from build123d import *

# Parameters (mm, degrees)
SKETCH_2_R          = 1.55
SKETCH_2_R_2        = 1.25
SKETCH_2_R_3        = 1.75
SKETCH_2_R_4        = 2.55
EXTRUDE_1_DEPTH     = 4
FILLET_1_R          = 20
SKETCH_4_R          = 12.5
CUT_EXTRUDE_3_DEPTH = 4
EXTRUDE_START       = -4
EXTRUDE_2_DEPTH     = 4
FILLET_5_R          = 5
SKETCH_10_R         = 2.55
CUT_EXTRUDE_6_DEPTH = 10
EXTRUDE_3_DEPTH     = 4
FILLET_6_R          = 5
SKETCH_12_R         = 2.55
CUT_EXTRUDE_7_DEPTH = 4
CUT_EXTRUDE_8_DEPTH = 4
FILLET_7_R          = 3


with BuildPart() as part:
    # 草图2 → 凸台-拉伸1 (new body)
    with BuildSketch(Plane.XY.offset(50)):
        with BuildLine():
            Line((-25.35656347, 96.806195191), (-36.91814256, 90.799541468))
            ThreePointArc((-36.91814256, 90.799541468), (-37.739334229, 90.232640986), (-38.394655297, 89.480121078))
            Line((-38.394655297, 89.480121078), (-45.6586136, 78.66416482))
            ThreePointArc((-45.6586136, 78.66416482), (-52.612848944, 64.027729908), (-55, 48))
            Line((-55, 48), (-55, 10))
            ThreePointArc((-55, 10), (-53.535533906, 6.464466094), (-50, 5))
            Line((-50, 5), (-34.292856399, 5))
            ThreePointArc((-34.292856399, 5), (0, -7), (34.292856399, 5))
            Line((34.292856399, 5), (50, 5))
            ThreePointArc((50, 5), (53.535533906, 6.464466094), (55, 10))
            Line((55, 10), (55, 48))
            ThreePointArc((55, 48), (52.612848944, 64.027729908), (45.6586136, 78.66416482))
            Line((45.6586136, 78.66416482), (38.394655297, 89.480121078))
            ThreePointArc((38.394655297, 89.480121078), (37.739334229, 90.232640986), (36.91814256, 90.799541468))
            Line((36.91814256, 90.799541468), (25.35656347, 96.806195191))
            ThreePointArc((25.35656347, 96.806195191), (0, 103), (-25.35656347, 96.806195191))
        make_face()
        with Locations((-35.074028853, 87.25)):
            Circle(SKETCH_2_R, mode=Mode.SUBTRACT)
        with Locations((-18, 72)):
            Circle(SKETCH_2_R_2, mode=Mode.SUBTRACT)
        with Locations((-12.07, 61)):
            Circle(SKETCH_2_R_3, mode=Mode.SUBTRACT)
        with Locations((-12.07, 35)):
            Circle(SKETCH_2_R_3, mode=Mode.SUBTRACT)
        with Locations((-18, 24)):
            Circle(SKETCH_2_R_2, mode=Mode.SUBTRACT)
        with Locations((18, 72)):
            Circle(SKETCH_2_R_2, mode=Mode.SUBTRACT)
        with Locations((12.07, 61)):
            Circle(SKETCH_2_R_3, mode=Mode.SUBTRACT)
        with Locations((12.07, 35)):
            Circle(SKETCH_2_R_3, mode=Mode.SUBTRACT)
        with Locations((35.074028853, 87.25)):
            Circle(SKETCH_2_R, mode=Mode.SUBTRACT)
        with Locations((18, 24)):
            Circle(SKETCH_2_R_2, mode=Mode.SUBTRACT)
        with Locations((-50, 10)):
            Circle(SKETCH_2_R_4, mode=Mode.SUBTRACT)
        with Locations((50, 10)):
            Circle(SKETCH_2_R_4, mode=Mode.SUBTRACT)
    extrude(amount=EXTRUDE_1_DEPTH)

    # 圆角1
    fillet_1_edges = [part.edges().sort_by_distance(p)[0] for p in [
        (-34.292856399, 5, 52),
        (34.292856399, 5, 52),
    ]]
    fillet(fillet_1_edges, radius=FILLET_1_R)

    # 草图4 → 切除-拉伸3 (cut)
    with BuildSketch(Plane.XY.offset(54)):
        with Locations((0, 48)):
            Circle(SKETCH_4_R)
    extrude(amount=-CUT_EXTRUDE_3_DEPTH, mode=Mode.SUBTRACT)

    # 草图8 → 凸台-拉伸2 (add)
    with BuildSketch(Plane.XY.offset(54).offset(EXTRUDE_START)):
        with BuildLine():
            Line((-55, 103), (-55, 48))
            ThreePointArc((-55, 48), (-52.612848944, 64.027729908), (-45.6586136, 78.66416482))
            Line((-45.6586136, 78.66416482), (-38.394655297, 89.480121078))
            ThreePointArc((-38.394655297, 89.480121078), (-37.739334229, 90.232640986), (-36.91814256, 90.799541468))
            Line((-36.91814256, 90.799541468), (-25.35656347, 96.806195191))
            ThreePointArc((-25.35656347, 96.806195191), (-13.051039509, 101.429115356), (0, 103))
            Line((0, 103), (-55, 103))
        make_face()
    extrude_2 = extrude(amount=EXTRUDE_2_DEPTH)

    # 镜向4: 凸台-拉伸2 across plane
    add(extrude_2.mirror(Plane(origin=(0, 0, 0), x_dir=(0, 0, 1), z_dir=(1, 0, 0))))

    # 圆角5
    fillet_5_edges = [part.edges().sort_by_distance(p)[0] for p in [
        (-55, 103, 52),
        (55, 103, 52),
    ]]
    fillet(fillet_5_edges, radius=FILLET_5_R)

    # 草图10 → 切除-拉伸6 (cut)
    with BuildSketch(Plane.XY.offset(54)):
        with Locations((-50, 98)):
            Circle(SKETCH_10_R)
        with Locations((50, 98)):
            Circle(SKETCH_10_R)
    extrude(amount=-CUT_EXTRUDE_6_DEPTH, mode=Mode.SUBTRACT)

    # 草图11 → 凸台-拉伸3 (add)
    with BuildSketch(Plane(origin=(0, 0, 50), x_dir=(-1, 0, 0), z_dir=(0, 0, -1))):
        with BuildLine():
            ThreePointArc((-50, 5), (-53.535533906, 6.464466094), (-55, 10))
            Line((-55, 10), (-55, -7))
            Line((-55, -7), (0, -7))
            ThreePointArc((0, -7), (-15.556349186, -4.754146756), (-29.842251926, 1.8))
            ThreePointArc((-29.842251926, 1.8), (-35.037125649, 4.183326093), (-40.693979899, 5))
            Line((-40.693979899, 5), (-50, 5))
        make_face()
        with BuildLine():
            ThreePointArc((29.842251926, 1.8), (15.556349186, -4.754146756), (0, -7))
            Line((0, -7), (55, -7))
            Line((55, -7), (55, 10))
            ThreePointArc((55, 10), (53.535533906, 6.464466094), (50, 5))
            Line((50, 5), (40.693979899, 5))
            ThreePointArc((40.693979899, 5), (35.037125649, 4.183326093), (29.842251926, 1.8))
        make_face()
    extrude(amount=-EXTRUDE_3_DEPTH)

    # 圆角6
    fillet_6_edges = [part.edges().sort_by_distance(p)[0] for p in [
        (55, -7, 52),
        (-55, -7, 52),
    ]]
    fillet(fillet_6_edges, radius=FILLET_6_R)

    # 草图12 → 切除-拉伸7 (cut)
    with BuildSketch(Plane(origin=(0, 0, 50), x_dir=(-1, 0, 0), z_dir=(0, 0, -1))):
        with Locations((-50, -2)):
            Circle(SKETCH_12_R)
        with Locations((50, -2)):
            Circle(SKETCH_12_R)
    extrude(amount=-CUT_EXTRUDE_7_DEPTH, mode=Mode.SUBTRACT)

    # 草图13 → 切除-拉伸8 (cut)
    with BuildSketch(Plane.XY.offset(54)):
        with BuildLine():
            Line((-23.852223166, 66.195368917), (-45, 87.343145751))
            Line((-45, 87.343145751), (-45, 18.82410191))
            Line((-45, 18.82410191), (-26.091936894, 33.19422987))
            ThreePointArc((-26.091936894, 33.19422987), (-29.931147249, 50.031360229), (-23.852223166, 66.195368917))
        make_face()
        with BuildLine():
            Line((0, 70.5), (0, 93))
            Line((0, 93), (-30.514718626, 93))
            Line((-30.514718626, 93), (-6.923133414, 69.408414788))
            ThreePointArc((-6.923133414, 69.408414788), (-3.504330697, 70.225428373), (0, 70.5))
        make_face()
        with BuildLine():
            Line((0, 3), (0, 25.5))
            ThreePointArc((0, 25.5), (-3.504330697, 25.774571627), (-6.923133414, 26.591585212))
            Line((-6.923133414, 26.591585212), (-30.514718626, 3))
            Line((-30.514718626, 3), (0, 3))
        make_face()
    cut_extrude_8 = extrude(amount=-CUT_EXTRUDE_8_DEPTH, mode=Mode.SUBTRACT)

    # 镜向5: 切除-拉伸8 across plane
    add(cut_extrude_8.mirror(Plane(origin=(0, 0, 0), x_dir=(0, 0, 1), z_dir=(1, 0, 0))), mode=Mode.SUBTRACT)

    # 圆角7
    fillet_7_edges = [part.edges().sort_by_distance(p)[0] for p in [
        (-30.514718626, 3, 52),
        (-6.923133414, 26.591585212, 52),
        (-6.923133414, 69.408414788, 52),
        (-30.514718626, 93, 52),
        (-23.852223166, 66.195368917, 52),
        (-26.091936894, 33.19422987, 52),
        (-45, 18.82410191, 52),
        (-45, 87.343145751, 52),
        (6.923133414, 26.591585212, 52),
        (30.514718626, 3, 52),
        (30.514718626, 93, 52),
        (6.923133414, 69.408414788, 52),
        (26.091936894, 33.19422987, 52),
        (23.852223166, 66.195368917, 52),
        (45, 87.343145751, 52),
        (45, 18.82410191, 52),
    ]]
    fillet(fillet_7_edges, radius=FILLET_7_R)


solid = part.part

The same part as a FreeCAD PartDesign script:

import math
import FreeCAD as App
import Part
import Sketcher


def edges_at(feature, points):
    """Names of the edges that pass closest to the given points."""
    edges = feature.Shape.Edges
    near = lambda p: min(range(len(edges)), key=lambda i: edges[i].distToShape(Part.Vertex(*p))[0])
    return sorted({f"Edge{near(p) + 1}" for p in points})

doc = App.newDocument("Part")
body = doc.addObject("PartDesign::Body", "Body")

# Sketch on XY plane
sketch1 = body.newObject("Sketcher::SketchObject", "Sketch")
sketch1.AttachmentSupport = (doc.getObject("XY_Plane"), [""])
sketch1.MapMode = "FlatFace"
sketch1.AttachmentOffset = App.Placement(App.Vector(0, 0, 50), App.Rotation())
sketch1.addGeometry(Part.LineSegment(App.Vector(-25.4, 96.8, 0), App.Vector(-36.9, 90.8, 0)), False)
sketch1.addGeometry(Part.ArcOfCircle(Part.Circle(App.Vector(-35.1, 87.2, 0), App.Vector(0, 0, 1), 4), math.radians(117), math.radians(146)), False)
sketch1.addGeometry(Part.LineSegment(App.Vector(-38.4, 89.5, 0), App.Vector(-45.7, 78.7, 0)), False)
sketch1.addGeometry(Part.ArcOfCircle(Part.Circle(App.Vector(0, 48, 0), App.Vector(0, 0, 1), 55), math.radians(146), math.radians(180)), False)
sketch1.addGeometry(Part.LineSegment(App.Vector(-55, 48, 0), App.Vector(-55, 10, 0)), False)
sketch1.addGeometry(Part.ArcOfCircle(Part.Circle(App.Vector(-50, 10, 0), App.Vector(0, 0, 1), 5), math.radians(180), math.radians(270)), False)
sketch1.addGeometry(Part.LineSegment(App.Vector(-50, 5, 0), App.Vector(-34.3, 5, 0)), False)
sketch1.addGeometry(Part.ArcOfCircle(Part.Circle(App.Vector(0, 48, 0), App.Vector(0, 0, 1), 55), math.radians(-129), math.radians(-51)), False)
sketch1.addGeometry(Part.LineSegment(App.Vector(34.3, 5, 0), App.Vector(50, 5, 0)), False)
sketch1.addGeometry(Part.ArcOfCircle(Part.Circle(App.Vector(50, 10, 0), App.Vector(0, 0, 1), 5), math.radians(-90), math.radians(0)), False)
sketch1.addGeometry(Part.LineSegment(App.Vector(55, 10, 0), App.Vector(55, 48, 0)), False)
sketch1.addGeometry(Part.ArcOfCircle(Part.Circle(App.Vector(0, 48, 0), App.Vector(0, 0, 1), 55), math.radians(0), math.radians(34)), False)
sketch1.addGeometry(Part.LineSegment(App.Vector(45.7, 78.7, 0), App.Vector(38.4, 89.5, 0)), False)
sketch1.addGeometry(Part.ArcOfCircle(Part.Circle(App.Vector(35.1, 87.2, 0), App.Vector(0, 0, 1), 4), math.radians(34), math.radians(63)), False)
sketch1.addGeometry(Part.LineSegment(App.Vector(36.9, 90.8, 0), App.Vector(25.4, 96.8, 0)), False)
sketch1.addGeometry(Part.ArcOfCircle(Part.Circle(App.Vector(0, 48, 0), App.Vector(0, 0, 1), 55), math.radians(63), math.radians(117)), False)
sketch1.addGeometry(Part.Circle(App.Vector(-50, 10, 0), App.Vector(0, 0, 1), 2.5), False)
sketch1.addGeometry(Part.Circle(App.Vector(-18, 24, 0), App.Vector(0, 0, 1), 1.2), False)
sketch1.addGeometry(Part.Circle(App.Vector(-12.1, 35, 0), App.Vector(0, 0, 1), 1.8), False)
sketch1.addGeometry(Part.Circle(App.Vector(18, 24, 0), App.Vector(0, 0, 1), 1.2), False)
sketch1.addGeometry(Part.Circle(App.Vector(50, 10, 0), App.Vector(0, 0, 1), 2.5), False)
sketch1.addGeometry(Part.Circle(App.Vector(12.1, 35, 0), App.Vector(0, 0, 1), 1.8), False)
sketch1.addGeometry(Part.Circle(App.Vector(-12.1, 61, 0), App.Vector(0, 0, 1), 1.8), False)
sketch1.addGeometry(Part.Circle(App.Vector(-35.1, 87.2, 0), App.Vector(0, 0, 1), 1.6), False)
sketch1.addGeometry(Part.Circle(App.Vector(-18, 72, 0), App.Vector(0, 0, 1), 1.2), False)
sketch1.addGeometry(Part.Circle(App.Vector(12.1, 61, 0), App.Vector(0, 0, 1), 1.8), False)
sketch1.addGeometry(Part.Circle(App.Vector(18, 72, 0), App.Vector(0, 0, 1), 1.2), False)
sketch1.addGeometry(Part.Circle(App.Vector(35.1, 87.2, 0), App.Vector(0, 0, 1), 1.6), False)
sketch1.addConstraint(Sketcher.Constraint("Tangent", 0, 2, 1, 1))
sketch1.addConstraint(Sketcher.Constraint("Tangent", 1, 2, 2, 1))
sketch1.addConstraint(Sketcher.Constraint("Tangent", 2, 2, 3, 1))
sketch1.addConstraint(Sketcher.Constraint("Tangent", 3, 2, 4, 1))
sketch1.addConstraint(Sketcher.Constraint("Tangent", 4, 2, 5, 1))
sketch1.addConstraint(Sketcher.Constraint("Tangent", 5, 2, 6, 1))
sketch1.addConstraint(Sketcher.Constraint("Coincident", 6, 2, 7, 1))
sketch1.addConstraint(Sketcher.Constraint("Coincident", 7, 2, 8, 1))
sketch1.addConstraint(Sketcher.Constraint("Tangent", 8, 2, 9, 1))
sketch1.addConstraint(Sketcher.Constraint("Tangent", 9, 2, 10, 1))
sketch1.addConstraint(Sketcher.Constraint("Tangent", 10, 2, 11, 1))
sketch1.addConstraint(Sketcher.Constraint("Tangent", 11, 2, 12, 1))
sketch1.addConstraint(Sketcher.Constraint("Tangent", 12, 2, 13, 1))
sketch1.addConstraint(Sketcher.Constraint("Tangent", 13, 2, 14, 1))
sketch1.addConstraint(Sketcher.Constraint("Tangent", 14, 2, 15, 1))
sketch1.addConstraint(Sketcher.Constraint("Tangent", 15, 2, 0, 1))
sketch1.addConstraint(Sketcher.Constraint("Vertical", 4))
sketch1.addConstraint(Sketcher.Constraint("Horizontal", 6))
sketch1.addConstraint(Sketcher.Constraint("Horizontal", 8))
sketch1.addConstraint(Sketcher.Constraint("Vertical", 10))
sketch1.addConstraint(Sketcher.Constraint("Coincident", 7, 3, 3, 3))
sketch1.addConstraint(Sketcher.Constraint("Coincident", 11, 3, 3, 3))
sketch1.addConstraint(Sketcher.Constraint("Coincident", 15, 3, 3, 3))
sketch1.addConstraint(Sketcher.Constraint("Coincident", 16, 3, 5, 3))
sketch1.addConstraint(Sketcher.Constraint("Coincident", 20, 3, 9, 3))
sketch1.addConstraint(Sketcher.Constraint("Coincident", 23, 3, 1, 3))
sketch1.addConstraint(Sketcher.Constraint("Coincident", 27, 3, 13, 3))
sketch1.addConstraint(Sketcher.Constraint("Equal", 3, 7))
sketch1.addConstraint(Sketcher.Constraint("Equal", 5, 9))
sketch1.addConstraint(Sketcher.Constraint("Equal", 7, 11))
sketch1.addConstraint(Sketcher.Constraint("Equal", 1, 13))
sketch1.addConstraint(Sketcher.Constraint("Equal", 11, 15))
sketch1.addConstraint(Sketcher.Constraint("Equal", 17, 19))
sketch1.addConstraint(Sketcher.Constraint("Equal", 16, 20))
sketch1.addConstraint(Sketcher.Constraint("Equal", 18, 21))
sketch1.addConstraint(Sketcher.Constraint("Equal", 21, 22))
sketch1.addConstraint(Sketcher.Constraint("Equal", 19, 24))
sketch1.addConstraint(Sketcher.Constraint("Equal", 22, 25))
sketch1.addConstraint(Sketcher.Constraint("Equal", 24, 26))
sketch1.addConstraint(Sketcher.Constraint("Equal", 23, 27))
sketch1.addConstraint(Sketcher.Constraint("Symmetric", 5, 3, 9, 3, -2))
sketch1.addConstraint(Sketcher.Constraint("Symmetric", 1, 3, 13, 3, -2))
sketch1.addConstraint(Sketcher.Constraint("Symmetric", 17, 3, 19, 3, -2))
sketch1.addConstraint(Sketcher.Constraint("Symmetric", 18, 3, 21, 3, -2))
sketch1.addConstraint(Sketcher.Constraint("Symmetric", 22, 3, 25, 3, -2))
sketch1.addConstraint(Sketcher.Constraint("Symmetric", 24, 3, 26, 3, -2))
sketch1.addConstraint(Sketcher.Constraint("Vertical", 18, 3, 22, 3))
sketch1.addConstraint(Sketcher.Constraint("Vertical", 17, 3, 24, 3))
sketch1.addConstraint(Sketcher.Constraint("Radius", 1, 4.0))
sketch1.addConstraint(Sketcher.Constraint("Radius", 3, 55.0))
sketch1.addConstraint(Sketcher.Constraint("Radius", 5, 5.0))
sketch1.addConstraint(Sketcher.Constraint("Diameter", 16, 5.1))
sketch1.addConstraint(Sketcher.Constraint("Diameter", 17, 2.5))
sketch1.addConstraint(Sketcher.Constraint("Diameter", 18, 3.5))
sketch1.addConstraint(Sketcher.Constraint("Diameter", 23, 3.1))
sketch1.addConstraint(Sketcher.Constraint("DistanceY", 4, 2, 4, 1, 38.0))
sketch1.addConstraint(Sketcher.Constraint("DistanceY", -1, 1, 3, 3, 48.0))
sketch1.addConstraint(Sketcher.Constraint("DistanceX", 17, 3, -1, 1, 18.0))
sketch1.addConstraint(Sketcher.Constraint("DistanceY", -1, 1, 17, 3, 24.0))
sketch1.addConstraint(Sketcher.Constraint("DistanceY", -1, 1, 18, 3, 35.0))
sketch1.addConstraint(Sketcher.Constraint("DistanceY", -1, 1, 22, 3, 61.0))
sketch1.addConstraint(Sketcher.Constraint("DistanceY", -1, 1, 24, 3, 72.0))
sketch1.addConstraint(Sketcher.Constraint("DistanceY", -1, 1, 1, 3, 87.25))
sketch1.addConstraint(Sketcher.Constraint("DistanceX", 18, 3, -1, 1, 12.07))
sketch1.addConstraint(Sketcher.Constraint("DistanceX", 1, 3, -1, 1, 35.074029))
pad1 = body.newObject("PartDesign::Pad", "Pad")
pad1.Profile = sketch1
pad1.Length = 4
doc.recompute()

fillet = body.newObject("PartDesign::Fillet", "Fillet")
fillet.Base = (pad1, edges_at(pad1, [(-34.293, 5, 52), (34.293, 5, 52)]))
fillet.Radius = 20

# Sketch on XY plane
sketch2 = body.newObject("Sketcher::SketchObject", "Sketch001")
sketch2.AttachmentSupport = (doc.getObject("XY_Plane"), [""])
sketch2.MapMode = "FlatFace"
sketch2.AttachmentOffset = App.Placement(App.Vector(0, 0, 54), App.Rotation())
sketch2.addGeometry(Part.Circle(App.Vector(0, 48, 0), App.Vector(0, 0, 1), 12), False)
sketch2.addConstraint(Sketcher.Constraint("PointOnObject", 0, 3, -2))
sketch2.addConstraint(Sketcher.Constraint("Diameter", 0, 25.0))
sketch2.addConstraint(Sketcher.Constraint("DistanceY", -1, 1, 0, 3, 48.0))
pocket1 = body.newObject("PartDesign::Pocket", "Pocket")
pocket1.Profile = sketch2
pocket1.Length = 4

# Sketch on XY plane
sketch3 = body.newObject("Sketcher::SketchObject", "Sketch002")
sketch3.AttachmentSupport = (doc.getObject("XY_Plane"), [""])
sketch3.MapMode = "FlatFace"
sketch3.AttachmentOffset = App.Placement(App.Vector(0, 0, 50), App.Rotation())
sketch3.addGeometry(Part.LineSegment(App.Vector(-55, 103, 0), App.Vector(-55, 48, 0)), False)
sketch3.addGeometry(Part.ArcOfCircle(Part.Circle(App.Vector(0, 48, 0), App.Vector(0, 0, 1), 55), math.radians(146), math.radians(180)), False)
sketch3.addGeometry(Part.LineSegment(App.Vector(-45.7, 78.7, 0), App.Vector(-38.4, 89.5, 0)), False)
sketch3.addGeometry(Part.ArcOfCircle(Part.Circle(App.Vector(-35.1, 87.2, 0), App.Vector(0, 0, 1), 4), math.radians(117), math.radians(146)), False)
sketch3.addGeometry(Part.LineSegment(App.Vector(-36.9, 90.8, 0), App.Vector(-25.4, 96.8, 0)), False)
sketch3.addGeometry(Part.ArcOfCircle(Part.Circle(App.Vector(0, 48, 0), App.Vector(0, 0, 1), 55), math.radians(90), math.radians(117)), False)
sketch3.addGeometry(Part.LineSegment(App.Vector(0, 103, 0), App.Vector(-55, 103, 0)), False)
sketch3.addConstraint(Sketcher.Constraint("Tangent", 0, 2, 1, 2))
sketch3.addConstraint(Sketcher.Constraint("Tangent", 1, 1, 2, 1))
sketch3.addConstraint(Sketcher.Constraint("Tangent", 2, 2, 3, 2))
sketch3.addConstraint(Sketcher.Constraint("Tangent", 3, 1, 4, 1))
sketch3.addConstraint(Sketcher.Constraint("Tangent", 4, 2, 5, 2))
sketch3.addConstraint(Sketcher.Constraint("Tangent", 5, 1, 6, 1))
sketch3.addConstraint(Sketcher.Constraint("Coincident", 6, 2, 0, 1))
sketch3.addConstraint(Sketcher.Constraint("Vertical", 0))
sketch3.addConstraint(Sketcher.Constraint("Horizontal", 6))
sketch3.addConstraint(Sketcher.Constraint("Coincident", 5, 3, 1, 3))
sketch3.addConstraint(Sketcher.Constraint("Equal", 1, 5))
sketch3.addConstraint(Sketcher.Constraint("PointOnObject", 1, 3, -2))
sketch3.addConstraint(Sketcher.Constraint("Radius", 1, 55.0))
sketch3.addConstraint(Sketcher.Constraint("Radius", 3, 4.0))
sketch3.addConstraint(Sketcher.Constraint("DistanceY", -1, 1, 1, 3, 48.0))
sketch3.addConstraint(Sketcher.Constraint("DistanceY", -1, 1, 3, 3, 87.25))
sketch3.addConstraint(Sketcher.Constraint("DistanceX", 3, 3, -1, 1, 35.074029))
pad2 = body.newObject("PartDesign::Pad", "Pad001")
pad2.Profile = sketch3
pad2.Length = 4
doc.recompute()

mirrored = body.newObject("PartDesign::Mirrored", "Mirrored")
mirrored.Originals = [pad2]
mirrored.MirrorPlane = (doc.getObject("YZ_Plane"), [""])
body.Tip = mirrored
doc.recompute()

fillet2 = body.newObject("PartDesign::Fillet", "Fillet001")
fillet2.Base = (mirrored, edges_at(mirrored, [(-55, 103, 52), (55, 103, 52)]))
fillet2.Radius = 5

# Sketch on XY plane
sketch4 = body.newObject("Sketcher::SketchObject", "Sketch003")
sketch4.AttachmentSupport = (doc.getObject("XY_Plane"), [""])
sketch4.MapMode = "FlatFace"
sketch4.AttachmentOffset = App.Placement(App.Vector(0, 0, 54), App.Rotation())
sketch4.addGeometry(Part.Circle(App.Vector(-50, 98, 0), App.Vector(0, 0, 1), 2.5), False)
sketch4.addGeometry(Part.Circle(App.Vector(50, 98, 0), App.Vector(0, 0, 1), 2.5), False)
sketch4.addConstraint(Sketcher.Constraint("Equal", 0, 1))
sketch4.addConstraint(Sketcher.Constraint("Symmetric", 0, 3, 1, 3, -2))
sketch4.addConstraint(Sketcher.Constraint("Diameter", 0, 5.1))
sketch4.addConstraint(Sketcher.Constraint("DistanceX", 0, 3, -1, 1, 50.0))
sketch4.addConstraint(Sketcher.Constraint("DistanceY", -1, 1, 0, 3, 98.0))
pocket2 = body.newObject("PartDesign::Pocket", "Pocket001")
pocket2.Profile = sketch4
pocket2.Length = 10

# Sketch on XY plane
sketch5 = body.newObject("Sketcher::SketchObject", "Sketch004")
sketch5.AttachmentSupport = (doc.getObject("XY_Plane"), [""])
sketch5.MapMode = "FlatFace"
sketch5.AttachmentOffset = App.Placement(App.Vector(0, 0, 50), App.Rotation())
sketch5.addGeometry(Part.ArcOfCircle(Part.Circle(App.Vector(50, 10, 0), App.Vector(0, 0, 1), 5), math.radians(-90), math.radians(0)), False)
sketch5.addGeometry(Part.LineSegment(App.Vector(55, 10, 0), App.Vector(55, -7, 0)), False)
sketch5.addGeometry(Part.LineSegment(App.Vector(55, -7, 0), App.Vector(0, -7, 0)), False)
sketch5.addGeometry(Part.ArcOfCircle(Part.Circle(App.Vector(0, 48, 0), App.Vector(0, 0, 1), 55), math.radians(-90), math.radians(-57)), False)
sketch5.addGeometry(Part.ArcOfCircle(Part.Circle(App.Vector(41, -15, 0), App.Vector(0, 0, 1), 20), math.radians(90), math.radians(123)), False)
sketch5.addGeometry(Part.LineSegment(App.Vector(41, 5, 0), App.Vector(50, 5, 0)), False)
sketch5.addGeometry(Part.ArcOfCircle(Part.Circle(App.Vector(0, 48, 0), App.Vector(0, 0, 1), 55), math.radians(-123), math.radians(-90)), False)
sketch5.addGeometry(Part.LineSegment(App.Vector(0, -7, 0), App.Vector(-55, -7, 0)), False)
sketch5.addGeometry(Part.LineSegment(App.Vector(-55, -7, 0), App.Vector(-55, 10, 0)), False)
sketch5.addGeometry(Part.ArcOfCircle(Part.Circle(App.Vector(-50, 10, 0), App.Vector(0, 0, 1), 5), math.radians(180), math.radians(270)), False)
sketch5.addGeometry(Part.LineSegment(App.Vector(-50, 5, 0), App.Vector(-41, 5, 0)), False)
sketch5.addGeometry(Part.ArcOfCircle(Part.Circle(App.Vector(-41, -15, 0), App.Vector(0, 0, 1), 20), math.radians(57), math.radians(90)), False)
sketch5.addConstraint(Sketcher.Constraint("Tangent", 0, 2, 1, 1))
sketch5.addConstraint(Sketcher.Constraint("Coincident", 1, 2, 2, 1))
sketch5.addConstraint(Sketcher.Constraint("Tangent", 2, 2, 3, 1))
sketch5.addConstraint(Sketcher.Constraint("Tangent", 3, 2, 4, 2))
sketch5.addConstraint(Sketcher.Constraint("Tangent", 4, 1, 5, 1))
sketch5.addConstraint(Sketcher.Constraint("Tangent", 5, 2, 0, 1))
sketch5.addConstraint(Sketcher.Constraint("Tangent", 6, 2, 7, 1))
sketch5.addConstraint(Sketcher.Constraint("Coincident", 7, 2, 8, 1))
sketch5.addConstraint(Sketcher.Constraint("Tangent", 8, 2, 9, 1))
sketch5.addConstraint(Sketcher.Constraint("Tangent", 9, 2, 10, 1))
sketch5.addConstraint(Sketcher.Constraint("Tangent", 10, 2, 11, 2))
sketch5.addConstraint(Sketcher.Constraint("Tangent", 11, 1, 6, 1))
sketch5.addConstraint(Sketcher.Constraint("Vertical", 1))
sketch5.addConstraint(Sketcher.Constraint("Horizontal", 2))
sketch5.addConstraint(Sketcher.Constraint("Horizontal", 5))
sketch5.addConstraint(Sketcher.Constraint("Horizontal", 7))
sketch5.addConstraint(Sketcher.Constraint("Vertical", 8))
sketch5.addConstraint(Sketcher.Constraint("Horizontal", 10))
sketch5.addConstraint(Sketcher.Constraint("Coincident", 6, 3, 3, 3))
sketch5.addConstraint(Sketcher.Constraint("Equal", 3, 6))
sketch5.addConstraint(Sketcher.Constraint("Equal", 0, 9))
sketch5.addConstraint(Sketcher.Constraint("Equal", 4, 11))
sketch5.addConstraint(Sketcher.Constraint("Symmetric", 0, 3, 9, 3, -2))
sketch5.addConstraint(Sketcher.Constraint("PointOnObject", 3, 3, -2))
sketch5.addConstraint(Sketcher.Constraint("Radius", 0, 5.0))
sketch5.addConstraint(Sketcher.Constraint("Radius", 3, 55.0))
sketch5.addConstraint(Sketcher.Constraint("Radius", 4, 20.0))
sketch5.addConstraint(Sketcher.Constraint("DistanceX", 2, 2, 2, 1, 55.0))
sketch5.addConstraint(Sketcher.Constraint("DistanceY", 1, 2, 1, 1, 17.0))
sketch5.addConstraint(Sketcher.Constraint("DistanceY", -1, 1, 0, 3, 10.0))
pad3 = body.newObject("PartDesign::Pad", "Pad002")
pad3.Profile = sketch5
pad3.Length = 4
doc.recompute()

fillet3 = body.newObject("PartDesign::Fillet", "Fillet002")
fillet3.Base = (pad3, edges_at(pad3, [(55, -7, 52), (-55, -7, 52)]))
fillet3.Radius = 5

# Sketch on XY plane
sketch6 = body.newObject("Sketcher::SketchObject", "Sketch005")
sketch6.AttachmentSupport = (doc.getObject("XY_Plane"), [""])
sketch6.MapMode = "FlatFace"
sketch6.AttachmentOffset = App.Placement(App.Vector(0, 0, 50), App.Rotation())
sketch6.addGeometry(Part.Circle(App.Vector(50, -2, 0), App.Vector(0, 0, 1), 2.5), False)
sketch6.addGeometry(Part.Circle(App.Vector(-50, -2, 0), App.Vector(0, 0, 1), 2.5), False)
sketch6.addConstraint(Sketcher.Constraint("Equal", 0, 1))
sketch6.addConstraint(Sketcher.Constraint("Symmetric", 0, 3, 1, 3, -2))
sketch6.addConstraint(Sketcher.Constraint("Diameter", 0, 5.1))
sketch6.addConstraint(Sketcher.Constraint("DistanceX", -1, 1, 0, 3, 50.0))
sketch6.addConstraint(Sketcher.Constraint("DistanceY", 0, 3, -1, 1, 2.0))
pocket3 = body.newObject("PartDesign::Pocket", "Pocket002")
pocket3.Profile = sketch6
pocket3.Length = 4
pocket3.Reversed = True

# Sketch on XY plane
sketch7 = body.newObject("Sketcher::SketchObject", "Sketch006")
sketch7.AttachmentSupport = (doc.getObject("XY_Plane"), [""])
sketch7.MapMode = "FlatFace"
sketch7.AttachmentOffset = App.Placement(App.Vector(0, 0, 54), App.Rotation())
sketch7.addGeometry(Part.LineSegment(App.Vector(-24, 66, 0), App.Vector(-45, 87, 0)), False)
sketch7.addGeometry(Part.LineSegment(App.Vector(-45, 87, 0), App.Vector(-45, 19, 0)), False)
sketch7.addGeometry(Part.LineSegment(App.Vector(-45, 19, 0), App.Vector(-26, 33, 0)), False)
sketch7.addGeometry(Part.ArcOfCircle(Part.Circle(App.Vector(0, 48, 0), App.Vector(0, 0, 1), 30), math.radians(143), math.radians(210)), False)
sketch7.addGeometry(Part.LineSegment(App.Vector(0, 70, 0), App.Vector(0, 93, 0)), False)
sketch7.addGeometry(Part.LineSegment(App.Vector(0, 93, 0), App.Vector(-31, 93, 0)), False)
sketch7.addGeometry(Part.LineSegment(App.Vector(-31, 93, 0), App.Vector(-7, 69, 0)), False)
sketch7.addGeometry(Part.ArcOfCircle(Part.Circle(App.Vector(0, 48, 0), App.Vector(0, 0, 1), 23), math.radians(90), math.radians(107.92)), False)
sketch7.addGeometry(Part.LineSegment(App.Vector(0, 3, 0), App.Vector(0, 26, 0)), False)
sketch7.addGeometry(Part.ArcOfCircle(Part.Circle(App.Vector(0, 48, 0), App.Vector(0, 0, 1), 23), math.radians(-107.92), math.radians(-90)), False)
sketch7.addGeometry(Part.LineSegment(App.Vector(-7, 27, 0), App.Vector(-31, 3, 0)), False)
sketch7.addGeometry(Part.LineSegment(App.Vector(-31, 3, 0), App.Vector(0, 3, 0)), False)
sketch7.addConstraint(Sketcher.Constraint("Coincident", 0, 2, 1, 1))
sketch7.addConstraint(Sketcher.Constraint("Coincident", 1, 2, 2, 1))
sketch7.addConstraint(Sketcher.Constraint("Coincident", 2, 2, 3, 2))
sketch7.addConstraint(Sketcher.Constraint("Coincident", 3, 1, 0, 1))
sketch7.addConstraint(Sketcher.Constraint("Coincident", 4, 2, 5, 1))
sketch7.addConstraint(Sketcher.Constraint("Coincident", 5, 2, 6, 1))
sketch7.addConstraint(Sketcher.Constraint("Coincident", 6, 2, 7, 2))
sketch7.addConstraint(Sketcher.Constraint("Coincident", 7, 1, 4, 1))
sketch7.addConstraint(Sketcher.Constraint("Coincident", 8, 2, 9, 2))
sketch7.addConstraint(Sketcher.Constraint("Coincident", 9, 1, 10, 1))
sketch7.addConstraint(Sketcher.Constraint("Coincident", 10, 2, 11, 1))
sketch7.addConstraint(Sketcher.Constraint("Coincident", 11, 2, 8, 1))
sketch7.addConstraint(Sketcher.Constraint("Vertical", 1))
sketch7.addConstraint(Sketcher.Constraint("Vertical", 4))
sketch7.addConstraint(Sketcher.Constraint("Horizontal", 5))
sketch7.addConstraint(Sketcher.Constraint("Vertical", 8))
sketch7.addConstraint(Sketcher.Constraint("Horizontal", 11))
sketch7.addConstraint(Sketcher.Constraint("Coincident", 7, 3, 3, 3))
sketch7.addConstraint(Sketcher.Constraint("Coincident", 9, 3, 3, 3))
sketch7.addConstraint(Sketcher.Constraint("Equal", 7, 9))
sketch7.addConstraint(Sketcher.Constraint("PointOnObject", 3, 3, -2))
sketch7.addConstraint(Sketcher.Constraint("PointOnObject", 4, 2, -2))
sketch7.addConstraint(Sketcher.Constraint("PointOnObject", 8, 2, -2))
sketch7.addConstraint(Sketcher.Constraint("Parallel", 0, 6))
sketch7.addConstraint(Sketcher.Constraint("Perpendicular", 6, 10))
sketch7.addConstraint(Sketcher.Constraint("Vertical", 6, 2, 9, 1))
sketch7.addConstraint(Sketcher.Constraint("Vertical", 5, 2, 10, 2))
sketch7.addConstraint(Sketcher.Constraint("Equal", 4, 8))
sketch7.addConstraint(Sketcher.Constraint("Radius", 3, 30.0))
sketch7.addConstraint(Sketcher.Constraint("Radius", 7, 22.5))
sketch7.addConstraint(Sketcher.Constraint("DistanceY", 4, 1, 4, 2, 22.5))
sketch7.addConstraint(Sketcher.Constraint("DistanceY", -1, 1, 3, 3, 48.0))
sketch7.addConstraint(Sketcher.Constraint("DistanceX", 0, 2, -1, 1, 45.0))
sketch7.addConstraint(Sketcher.Constraint("DistanceX", 5, 2, 5, 1, 30.514719))
sketch7.addConstraint(Sketcher.Constraint("DistanceY", -1, 1, 1, 2, 18.824102))
sketch7.addConstraint(Sketcher.Constraint("Distance", 2, 23.749009))
sketch7.addConstraint(Sketcher.Constraint("DistanceY", 1, 2, 1, 1, 68.519044))
pocket4 = body.newObject("PartDesign::Pocket", "Pocket003")
pocket4.Profile = sketch7
pocket4.Length = 4
doc.recompute()

mirrored2 = body.newObject("PartDesign::Mirrored", "Mirrored001")
mirrored2.Originals = [pocket4]
mirrored2.MirrorPlane = (doc.getObject("YZ_Plane"), [""])
body.Tip = mirrored2
doc.recompute()

fillet4 = body.newObject("PartDesign::Fillet", "Fillet003")
fillet4.Base = (mirrored2, edges_at(mirrored2, [
    (-30.515, 3, 52),
    (-6.923, 26.592, 52),
    (-6.923, 69.408, 52),
    (-30.515, 93, 52),
    (-23.852, 66.195, 52),
    (-26.092, 33.194, 52),
    (-45, 18.824, 52),
    (-45, 87.343, 52),
    (6.923, 26.592, 52),
    (30.515, 3, 52),
    (30.515, 93, 52),
    (6.923, 69.408, 52),
    (26.092, 33.194, 52),
    (23.852, 66.195, 52),
    (45, 87.343, 52),
    (45, 18.824, 52),
]))
fillet4.Radius = 3

doc.recompute()
